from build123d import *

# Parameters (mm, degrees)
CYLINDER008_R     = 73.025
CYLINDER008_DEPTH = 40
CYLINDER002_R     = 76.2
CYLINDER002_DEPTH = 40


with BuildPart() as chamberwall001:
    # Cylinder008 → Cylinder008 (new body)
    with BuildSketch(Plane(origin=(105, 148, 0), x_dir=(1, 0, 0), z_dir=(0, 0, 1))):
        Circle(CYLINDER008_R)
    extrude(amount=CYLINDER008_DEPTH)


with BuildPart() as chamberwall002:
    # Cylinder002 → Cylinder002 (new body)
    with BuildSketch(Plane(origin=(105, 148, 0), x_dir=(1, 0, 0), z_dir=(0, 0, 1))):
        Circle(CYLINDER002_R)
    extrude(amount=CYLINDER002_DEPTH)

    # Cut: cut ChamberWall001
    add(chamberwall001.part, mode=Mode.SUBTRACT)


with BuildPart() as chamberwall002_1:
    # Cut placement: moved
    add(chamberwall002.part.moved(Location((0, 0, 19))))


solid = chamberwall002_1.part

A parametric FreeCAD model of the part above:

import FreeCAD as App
import Part
import Sketcher
Q = App.Units.Quantity

doc = App.newDocument("Part")
body = doc.addObject("PartDesign::Body", "Body")

# Sketch on XY plane
sketch1 = doc.addObject("Sketcher::SketchObject", "Sketch")
body.addObject(sketch1)
sketch1.AttachmentSupport = (doc.XY_Plane, [""])
sketch1.MapMode = "FlatFace"
sketch1.addGeometry(Part.Circle(App.Vector(105, 148, 0), App.Vector(0, 0, 1), 73.025), False)
sketch1.addConstraint([
    Sketcher.Constraint("Diameter", 0, Q("5.75 in")),
    Sketcher.Constraint("DistanceX", -1, 1, 0, 3, 105.0),
    Sketcher.Constraint("DistanceY", -1, 1, 0, 3, 148.0),
])
pad1 = doc.addObject("PartDesign::Pad", "Pad")
body.addObject(pad1)
pad1.Profile = sketch1
pad1.Length = 40
body2 = doc.addObject("PartDesign::Body", "Body001")

# Sketch on XY plane
sketch2 = doc.addObject("Sketcher::SketchObject", "Sketch001")
body2.addObject(sketch2)
sketch2.AttachmentSupport = (doc.getObject("XY_Plane001"), [""])
sketch2.MapMode = "FlatFace"
sketch2.addGeometry(Part.Circle(App.Vector(105, 148, 0), App.Vector(0, 0, 1), 76.2), False)
sketch2.addConstraint([
    Sketcher.Constraint("Diameter", 0, Q("6 in")),
    Sketcher.Constraint("DistanceX", -1, 1, 0, 3, 105.0),
    Sketcher.Constraint("DistanceY", -1, 1, 0, 3, 148.0),
])
pad2 = doc.addObject("PartDesign::Pad", "Pad001")
body2.addObject(pad2)
pad2.Profile = sketch2
pad2.Length = 40
doc.recompute()

boolean = doc.addObject("PartDesign::Boolean", "Boolean")
body2.addObject(boolean)
boolean.Type = "Cut"
boolean.addObjects([body])
body3 = doc.addObject("PartDesign::Body", "Body002")
doc.recompute()

body2.Placement = App.Placement(App.Vector(0, 0, 19), App.Rotation(App.Vector(0, 0, 1), 0))
boolean2 = doc.addObject("PartDesign::Boolean", "Boolean001")
body3.addObject(boolean2)
boolean2.Type = "Fuse"
boolean2.addObjects([body2])

doc.recompute()
